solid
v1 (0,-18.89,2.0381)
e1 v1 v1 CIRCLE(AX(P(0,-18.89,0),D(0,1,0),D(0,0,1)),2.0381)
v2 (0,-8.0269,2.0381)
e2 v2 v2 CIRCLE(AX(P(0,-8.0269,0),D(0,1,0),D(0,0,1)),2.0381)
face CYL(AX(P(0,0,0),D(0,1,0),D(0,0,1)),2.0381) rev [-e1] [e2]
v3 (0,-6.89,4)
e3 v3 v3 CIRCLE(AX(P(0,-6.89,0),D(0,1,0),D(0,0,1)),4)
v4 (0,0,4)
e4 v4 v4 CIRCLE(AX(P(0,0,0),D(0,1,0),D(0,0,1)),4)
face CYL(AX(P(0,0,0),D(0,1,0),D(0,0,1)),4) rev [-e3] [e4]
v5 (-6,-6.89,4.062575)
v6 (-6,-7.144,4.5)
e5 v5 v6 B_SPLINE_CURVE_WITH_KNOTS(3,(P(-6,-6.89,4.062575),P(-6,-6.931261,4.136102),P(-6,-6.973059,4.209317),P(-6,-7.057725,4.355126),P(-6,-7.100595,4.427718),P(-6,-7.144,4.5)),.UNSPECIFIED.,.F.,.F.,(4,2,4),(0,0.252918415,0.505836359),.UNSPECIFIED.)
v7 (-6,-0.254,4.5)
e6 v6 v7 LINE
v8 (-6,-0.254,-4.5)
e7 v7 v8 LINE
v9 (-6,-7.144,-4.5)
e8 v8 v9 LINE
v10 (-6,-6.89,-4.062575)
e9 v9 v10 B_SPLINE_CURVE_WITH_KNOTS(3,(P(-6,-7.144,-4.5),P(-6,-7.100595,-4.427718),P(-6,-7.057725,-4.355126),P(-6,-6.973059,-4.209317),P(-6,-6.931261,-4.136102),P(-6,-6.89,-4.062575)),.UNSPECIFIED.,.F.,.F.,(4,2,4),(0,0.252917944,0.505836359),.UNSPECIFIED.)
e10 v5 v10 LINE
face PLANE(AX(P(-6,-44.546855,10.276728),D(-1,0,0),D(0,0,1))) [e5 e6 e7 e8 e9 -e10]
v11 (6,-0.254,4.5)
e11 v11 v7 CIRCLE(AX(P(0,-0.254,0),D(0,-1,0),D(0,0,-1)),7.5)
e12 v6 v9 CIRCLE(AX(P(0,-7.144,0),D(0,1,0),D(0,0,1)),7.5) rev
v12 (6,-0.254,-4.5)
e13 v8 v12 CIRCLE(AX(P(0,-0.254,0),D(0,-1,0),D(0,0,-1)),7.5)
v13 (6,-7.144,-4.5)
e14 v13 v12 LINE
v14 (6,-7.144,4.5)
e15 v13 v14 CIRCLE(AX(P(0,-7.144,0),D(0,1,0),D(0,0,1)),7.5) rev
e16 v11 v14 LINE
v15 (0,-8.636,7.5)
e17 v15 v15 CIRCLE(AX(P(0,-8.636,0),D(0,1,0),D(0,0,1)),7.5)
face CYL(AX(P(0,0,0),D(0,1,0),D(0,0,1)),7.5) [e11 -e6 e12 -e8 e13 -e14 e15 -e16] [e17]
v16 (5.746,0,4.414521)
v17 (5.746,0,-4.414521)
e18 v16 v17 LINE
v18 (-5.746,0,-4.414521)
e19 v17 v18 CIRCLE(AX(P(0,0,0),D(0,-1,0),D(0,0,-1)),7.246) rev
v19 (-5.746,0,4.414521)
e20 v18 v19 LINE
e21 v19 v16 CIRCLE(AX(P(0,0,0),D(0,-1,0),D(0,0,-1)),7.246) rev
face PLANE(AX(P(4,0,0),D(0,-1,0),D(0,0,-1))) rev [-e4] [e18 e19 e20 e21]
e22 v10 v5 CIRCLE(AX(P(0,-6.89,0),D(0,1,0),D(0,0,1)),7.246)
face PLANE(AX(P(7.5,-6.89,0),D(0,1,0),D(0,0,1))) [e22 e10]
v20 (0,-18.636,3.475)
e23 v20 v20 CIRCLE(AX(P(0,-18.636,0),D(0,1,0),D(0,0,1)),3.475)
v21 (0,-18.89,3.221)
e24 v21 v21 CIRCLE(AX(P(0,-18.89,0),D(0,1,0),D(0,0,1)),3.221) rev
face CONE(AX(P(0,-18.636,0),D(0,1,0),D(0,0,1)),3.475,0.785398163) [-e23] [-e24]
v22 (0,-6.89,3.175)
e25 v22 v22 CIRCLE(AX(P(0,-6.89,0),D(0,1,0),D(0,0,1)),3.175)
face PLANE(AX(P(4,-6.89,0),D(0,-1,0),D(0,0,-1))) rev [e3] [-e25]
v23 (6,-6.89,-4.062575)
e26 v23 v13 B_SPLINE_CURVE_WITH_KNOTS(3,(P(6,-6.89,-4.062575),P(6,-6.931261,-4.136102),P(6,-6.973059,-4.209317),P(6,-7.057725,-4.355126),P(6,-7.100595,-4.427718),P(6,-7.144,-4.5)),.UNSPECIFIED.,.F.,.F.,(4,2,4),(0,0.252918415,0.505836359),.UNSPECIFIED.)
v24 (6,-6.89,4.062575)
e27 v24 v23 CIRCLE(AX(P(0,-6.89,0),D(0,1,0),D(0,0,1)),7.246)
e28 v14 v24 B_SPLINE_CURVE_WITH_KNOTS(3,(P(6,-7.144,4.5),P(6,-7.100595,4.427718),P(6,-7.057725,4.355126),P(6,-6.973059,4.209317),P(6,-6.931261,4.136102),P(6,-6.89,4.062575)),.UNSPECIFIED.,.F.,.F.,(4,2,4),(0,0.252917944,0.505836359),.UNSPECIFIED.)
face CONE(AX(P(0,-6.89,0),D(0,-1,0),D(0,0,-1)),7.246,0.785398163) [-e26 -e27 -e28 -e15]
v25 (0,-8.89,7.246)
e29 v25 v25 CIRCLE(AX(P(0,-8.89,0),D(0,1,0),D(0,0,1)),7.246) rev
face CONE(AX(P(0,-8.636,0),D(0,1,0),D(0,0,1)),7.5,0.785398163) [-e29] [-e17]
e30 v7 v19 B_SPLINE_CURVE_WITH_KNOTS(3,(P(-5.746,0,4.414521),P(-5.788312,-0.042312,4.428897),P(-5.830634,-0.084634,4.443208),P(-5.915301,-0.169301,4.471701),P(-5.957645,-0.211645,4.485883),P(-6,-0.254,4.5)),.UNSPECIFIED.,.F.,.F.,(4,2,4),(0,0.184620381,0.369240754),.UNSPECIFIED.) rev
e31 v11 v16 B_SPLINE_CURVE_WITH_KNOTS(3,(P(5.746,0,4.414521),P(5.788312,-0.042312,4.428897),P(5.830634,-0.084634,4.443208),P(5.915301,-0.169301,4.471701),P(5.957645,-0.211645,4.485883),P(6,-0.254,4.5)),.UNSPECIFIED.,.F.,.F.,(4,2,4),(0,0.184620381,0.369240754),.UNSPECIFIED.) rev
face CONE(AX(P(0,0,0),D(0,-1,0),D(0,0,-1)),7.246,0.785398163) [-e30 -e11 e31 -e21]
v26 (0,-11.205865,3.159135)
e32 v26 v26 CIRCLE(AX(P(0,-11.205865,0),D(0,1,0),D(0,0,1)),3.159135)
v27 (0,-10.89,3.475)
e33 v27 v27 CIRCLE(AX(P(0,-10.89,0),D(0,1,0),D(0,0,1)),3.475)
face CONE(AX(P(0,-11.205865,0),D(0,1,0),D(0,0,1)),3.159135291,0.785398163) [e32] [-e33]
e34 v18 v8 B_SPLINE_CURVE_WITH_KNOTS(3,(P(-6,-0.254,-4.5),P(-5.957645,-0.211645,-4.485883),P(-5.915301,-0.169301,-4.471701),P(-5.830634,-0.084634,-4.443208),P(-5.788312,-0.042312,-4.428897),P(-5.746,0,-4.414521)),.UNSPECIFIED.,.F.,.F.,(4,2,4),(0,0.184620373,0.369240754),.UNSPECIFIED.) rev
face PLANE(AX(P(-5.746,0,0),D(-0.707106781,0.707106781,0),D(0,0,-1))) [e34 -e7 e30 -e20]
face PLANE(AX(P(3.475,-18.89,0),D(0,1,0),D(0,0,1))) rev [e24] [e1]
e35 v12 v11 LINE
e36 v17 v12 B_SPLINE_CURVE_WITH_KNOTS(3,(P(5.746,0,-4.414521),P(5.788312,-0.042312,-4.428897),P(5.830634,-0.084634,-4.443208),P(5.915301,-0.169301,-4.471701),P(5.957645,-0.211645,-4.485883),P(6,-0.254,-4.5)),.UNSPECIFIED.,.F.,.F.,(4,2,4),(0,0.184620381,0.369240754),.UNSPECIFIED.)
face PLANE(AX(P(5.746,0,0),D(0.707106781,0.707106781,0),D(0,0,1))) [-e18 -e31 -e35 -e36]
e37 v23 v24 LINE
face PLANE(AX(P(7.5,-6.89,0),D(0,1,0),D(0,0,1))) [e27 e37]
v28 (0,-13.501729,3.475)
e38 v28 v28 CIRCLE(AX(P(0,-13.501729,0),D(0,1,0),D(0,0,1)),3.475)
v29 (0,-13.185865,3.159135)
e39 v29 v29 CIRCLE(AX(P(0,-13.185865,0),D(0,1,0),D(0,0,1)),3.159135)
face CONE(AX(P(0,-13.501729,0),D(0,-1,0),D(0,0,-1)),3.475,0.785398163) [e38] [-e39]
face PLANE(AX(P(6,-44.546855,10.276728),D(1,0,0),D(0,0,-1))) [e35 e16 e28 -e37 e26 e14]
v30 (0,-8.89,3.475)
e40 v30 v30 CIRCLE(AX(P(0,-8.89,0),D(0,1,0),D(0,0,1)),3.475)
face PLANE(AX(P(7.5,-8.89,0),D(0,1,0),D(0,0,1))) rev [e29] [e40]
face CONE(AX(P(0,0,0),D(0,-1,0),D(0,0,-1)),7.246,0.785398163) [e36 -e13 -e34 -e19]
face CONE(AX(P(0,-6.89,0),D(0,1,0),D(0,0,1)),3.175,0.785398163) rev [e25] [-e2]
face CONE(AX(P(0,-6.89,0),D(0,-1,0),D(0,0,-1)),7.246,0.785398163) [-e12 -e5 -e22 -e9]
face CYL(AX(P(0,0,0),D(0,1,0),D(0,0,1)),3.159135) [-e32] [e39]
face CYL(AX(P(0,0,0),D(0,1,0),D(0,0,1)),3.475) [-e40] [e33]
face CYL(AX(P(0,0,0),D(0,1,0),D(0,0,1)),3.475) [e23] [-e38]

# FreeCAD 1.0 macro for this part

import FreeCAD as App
import Part
import Sketcher

V = App.Vector
Q = App.Units.Quantity


def edges_at(feature, points):
    """Names of the edges that pass closest to the given points."""
    edges = feature.Shape.Edges
    near = lambda p: min(range(len(edges)), key=lambda i: edges[i].distToShape(Part.Vertex(*p))[0])
    return sorted({f"Edge{near(p) + 1}" for p in points})


def add_polygon(sketch, points):
    """Adds a closed chain of lines whose ends are joined by coincident constraints."""
    first, n = sketch.GeometryCount, len(points)
    for a, b in zip(points, points[1:] + points[:1]):
        sketch.addGeometry(Part.LineSegment(App.Vector(*a, 0), App.Vector(*b, 0)), False)
    for i in range(n):
        sketch.addConstraint(Sketcher.Constraint("Coincident", first + i, 2, first + (i + 1) % n, 1))

doc = App.newDocument("Part")
body = doc.addObject("PartDesign::Body", "Body")

# Sketch on XY plane
sketch1 = body.newObject("Sketcher::SketchObject", "Sketch")
sketch1.AttachmentSupport = (doc.getObject("XY_Plane"), [""])
sketch1.MapMode = "FlatFace"
add_polygon(sketch1, [(7.5, -8.89), (7.5, 0), (4, 0), (4, -6.89), (3.17, -6.89), (2.04, -8.03), (2.04, -18.89), (3.48, -18.89), (3.48, -13.5), (3.16, -13.19), (3.16, -11.21), (3.48, -10.89), (3.48, -8.89)])  # lines 0-12
sketch1.addConstraint([
    Sketcher.Constraint("Vertical", 0),
    Sketcher.Constraint("Horizontal", 1),
    Sketcher.Constraint("Vertical", 2),
    Sketcher.Constraint("Horizontal", 3),
    Sketcher.Constraint("Vertical", 5),
    Sketcher.Constraint("Horizontal", 6),
    Sketcher.Constraint("Vertical", 7),
    Sketcher.Constraint("Vertical", 9),
    Sketcher.Constraint("Vertical", 11),
    Sketcher.Constraint("Horizontal", 12),
    Sketcher.Constraint("PointOnObject", 0, 2, -1),
    Sketcher.Constraint("Perpendicular", 4, 8),
    Sketcher.Constraint("Perpendicular", 8, 10),
    Sketcher.Constraint("Vertical", 7, 2, 10, 2),
    Sketcher.Constraint("Equal", 8, 10),
    Sketcher.Constraint("DistanceY", 11, 1, 11, 2, Q("2 mm")),
    Sketcher.Constraint("DistanceX", 1, 2, 1, 1, Q("3.5 mm")),
    Sketcher.Constraint("DistanceX", -1, 1, 1, 2, Q("4 mm")),
    Sketcher.Constraint("DistanceY", 5, 2, 3, 2, Q("12 mm")),
    Sketcher.Constraint("DistanceY", 10, 2, 3, 2, Q("4 mm")),
    Sketcher.Constraint("DistanceY", 0, 1, 0, 2, Q("8.89 mm")),
    Sketcher.Constraint("DistanceY", 9, 1, 9, 2, Q("1.98 mm")),
    Sketcher.Constraint("DistanceX", 3, 2, 6, 2, Q("0.3 mm")),
    Sketcher.Constraint("DistanceX", 3, 2, 3, 1, Q("0.825 mm")),
    Sketcher.Constraint("DistanceX", 6, 1, 6, 2, Q("1.4369 mm")),
    Sketcher.Constraint("Distance", 8, Q("0.4467 mm")),
])
revolution = body.newObject("PartDesign::Revolution", "Revolution")
revolution.Profile = sketch1
revolution.ReferenceAxis = (sketch1, ["V_Axis"])
revolution.Angle = 360

# Sketch on XZ plane
sketch2 = body.newObject("Sketcher::SketchObject", "Sketch001")
sketch2.AttachmentSupport = (doc.getObject("XZ_Plane"), [""])
sketch2.MapMode = "FlatFace"
add_polygon(sketch2, [(-10, -15), (-10, 15), (10, 15), (10, -15)])  # lines 0-3
add_polygon(sketch2, [(6, 10), (-6, 10), (-6, -10), (6, -10)])  # lines 4-7
sketch2.addConstraint([
    Sketcher.Constraint("Vertical", 0),
    Sketcher.Constraint("Horizontal", 1),
    Sketcher.Constraint("Vertical", 2),
    Sketcher.Constraint("Horizontal", 3),
    Sketcher.Constraint("Horizontal", 4),
    Sketcher.Constraint("Vertical", 5),
    Sketcher.Constraint("Horizontal", 6),
    Sketcher.Constraint("Vertical", 7),
    Sketcher.Constraint("Symmetric", 0, 2, 2, 2, -1, 1),
    Sketcher.Constraint("Symmetric", 4, 2, 6, 2, -1, 1),
    Sketcher.Constraint("DistanceX", 4, 2, 4, 1, Q("12 mm")),
    Sketcher.Constraint("DistanceY", 0, 1, 0, 2, Q("29.427861 mm")),
    Sketcher.Constraint("DistanceX", 1, 1, 1, 2, Q("20.134852 mm")),
    Sketcher.Constraint("DistanceY", 5, 2, 5, 1, Q("20.553456 mm")),
])
pocket1 = body.newObject("PartDesign::Pocket", "Pocket")
pocket1.Profile = sketch2
pocket1.Length = 6.89
pocket1.Reversed = True
doc.recompute()

chamfer = body.newObject("PartDesign::Chamfer", "Chamfer")
chamfer.Base = (pocket1, edges_at(pocket1, [(-3.475, -18.89, 0), (-7.5, -8.89, 0)]))
chamfer.Size = 0.254
doc.recompute()

chamfer2 = body.newObject("PartDesign::Chamfer", "Chamfer001")
chamfer2.Base = (chamfer, edges_at(chamfer, [
    (0, 0, -7.5),
    (0, 0, 7.5),
    (6, 0, 0),
    (-6, 0, 0),
]))
chamfer2.Size = 0.254
doc.recompute()

chamfer3 = body.newObject("PartDesign::Chamfer", "Chamfer002")
chamfer3.Base = (chamfer2, edges_at(chamfer2, [(-7.5, -6.89, 0), (7.115, -6.89, 2.372)]))
chamfer3.Size = 0.254

doc.recompute()
